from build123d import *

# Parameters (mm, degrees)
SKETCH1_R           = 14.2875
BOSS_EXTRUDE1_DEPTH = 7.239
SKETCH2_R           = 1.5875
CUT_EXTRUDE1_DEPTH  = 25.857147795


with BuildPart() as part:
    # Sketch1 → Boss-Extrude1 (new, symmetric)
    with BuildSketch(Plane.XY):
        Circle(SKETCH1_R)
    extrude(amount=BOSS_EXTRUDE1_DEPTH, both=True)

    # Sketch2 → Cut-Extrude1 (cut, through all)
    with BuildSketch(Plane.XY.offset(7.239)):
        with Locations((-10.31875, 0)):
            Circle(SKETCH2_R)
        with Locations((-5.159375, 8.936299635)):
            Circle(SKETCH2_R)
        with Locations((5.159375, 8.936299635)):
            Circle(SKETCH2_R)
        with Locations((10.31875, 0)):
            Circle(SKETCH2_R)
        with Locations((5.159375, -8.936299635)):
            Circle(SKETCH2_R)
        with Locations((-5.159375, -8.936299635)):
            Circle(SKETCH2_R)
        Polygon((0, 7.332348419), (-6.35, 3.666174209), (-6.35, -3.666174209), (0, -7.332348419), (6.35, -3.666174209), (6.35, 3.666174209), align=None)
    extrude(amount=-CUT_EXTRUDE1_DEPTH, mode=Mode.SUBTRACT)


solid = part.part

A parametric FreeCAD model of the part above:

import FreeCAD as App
import Part
import Sketcher
Q = App.Units.Quantity


def add_polygon(sketch, points):
    """Adds a closed chain of lines whose ends are joined by coincident constraints."""
    first, n = sketch.GeometryCount, len(points)
    for a, b in zip(points, points[1:] + points[:1]):
        sketch.addGeometry(Part.LineSegment(App.Vector(*a, 0), App.Vector(*b, 0)), False)
    for i in range(n):
        sketch.addConstraint(Sketcher.Constraint("Coincident", first + i, 2, first + (i + 1) % n, 1))

doc = App.newDocument("Part")
params = doc.addObject("Spreadsheet::Sheet", "Params")
for row, (alias, value) in enumerate([
    ("sketch1_diameter", "1.125 in"),
    ("pad1_length", "0.57 in"),
    ("sketch2_diameter", "0.125 in"),
], start=1):
    params.set(f"A{row}", alias)
    params.set(f"B{row}", "=" + value)
    params.setAlias(f"B{row}", alias)

body = doc.addObject("PartDesign::Body", "Body")

# Sketch on XY plane
sketch1 = doc.addObject("Sketcher::SketchObject", "Sketch")
body.addObject(sketch1)
sketch1.AttachmentSupport = (doc.XY_Plane, [""])
sketch1.MapMode = "FlatFace"
sketch1.addGeometry(Part.Circle(App.Vector(0, 0, 0), App.Vector(0, 0, 1), 14.2875), False)
sketch1.addConstraint(Sketcher.Constraint("Coincident", 0, 3, -1, 1))
sketch1.addConstraint(Sketcher.Constraint("Diameter", 0, Q("1.125 in")))
sketch1.setExpression("Constraints[1]", "Params.sketch1_diameter")
pad1 = doc.addObject("PartDesign::Pad", "Pad")
body.addObject(pad1)
pad1.Profile = sketch1
pad1.setExpression("Length", "Params.pad1_length")
pad1.Midplane = True

# Sketch on XY plane
sketch2 = doc.addObject("Sketcher::SketchObject", "Sketch001")
body.addObject(sketch2)
sketch2.AttachmentSupport = (doc.XY_Plane, [""])
sketch2.MapMode = "FlatFace"
sketch2.AttachmentOffset = App.Placement(App.Vector(0, 0, 0.285 * 25.4), App.Rotation())
sketch2.addGeometry(Part.Circle(App.Vector(-10.31875, 0, 0), App.Vector(0, 0, 1), 1.5875), False)  # 0
sketch2.addGeometry(Part.Circle(App.Vector(-5.159375, 8.9363, 0), App.Vector(0, 0, 1), 1.5875), False)  # 1
sketch2.addGeometry(Part.Circle(App.Vector(5.159375, 8.9363, 0), App.Vector(0, 0, 1), 1.5875), False)  # 2
sketch2.addGeometry(Part.Circle(App.Vector(10.31875, 0, 0), App.Vector(0, 0, 1), 1.5875), False)  # 3
sketch2.addGeometry(Part.Circle(App.Vector(5.159375, -8.9363, 0), App.Vector(0, 0, 1), 1.5875), False)  # 4
sketch2.addGeometry(Part.Circle(App.Vector(-5.159375, -8.9363, 0), App.Vector(0, 0, 1), 1.5875), False)  # 5
add_polygon(sketch2, [(0, 7.332348), (-6.35, 3.666174), (-6.35, -3.666174), (0, -7.332348), (6.35, -3.666174), (6.35, 3.666174)])  # lines 6-11
sketch2.addConstraint(Sketcher.Constraint("Vertical", 7))
sketch2.addConstraint(Sketcher.Constraint("Vertical", 10))
sketch2.addConstraint(Sketcher.Constraint("Equal", 0, 1))
sketch2.addConstraint(Sketcher.Constraint("Equal", 1, 2))
sketch2.addConstraint(Sketcher.Constraint("Equal", 2, 3))
sketch2.addConstraint(Sketcher.Constraint("Equal", 3, 4))
sketch2.addConstraint(Sketcher.Constraint("Equal", 4, 5))
sketch2.addConstraint(Sketcher.Constraint("Symmetric", 0, 3, 3, 3, -1, 1))
sketch2.addConstraint(Sketcher.Constraint("Symmetric", 1, 3, 4, 3, -1, 1))
sketch2.addConstraint(Sketcher.Constraint("Symmetric", 2, 3, 5, 3, -1, 1))
sketch2.addConstraint(Sketcher.Constraint("Symmetric", 6, 2, 9, 2, -1, 1))
sketch2.addConstraint(Sketcher.Constraint("Symmetric", 8, 2, 11, 2, -1, 1))
sketch2.addConstraint(Sketcher.Constraint("Symmetric", 1, 3, 2, 3, -2))
sketch2.addConstraint(Sketcher.Constraint("PointOnObject", 0, 3, -1))
sketch2.addConstraint(Sketcher.Constraint("PointOnObject", 8, 2, -2))
sketch2.addConstraint(Sketcher.Constraint("Parallel", 8, 11))
sketch2.addConstraint(Sketcher.Constraint("Horizontal", 7, 2, 9, 2))
sketch2.addConstraint(Sketcher.Constraint("Diameter", 0, Q("0.125 in")))
sketch2.addConstraint(Sketcher.Constraint("Angle", 6, Q("-150 deg")))
sketch2.addConstraint(Sketcher.Constraint("DistanceX", 6, 2, -1, 1, Q("0.25 in")))
sketch2.addConstraint(Sketcher.Constraint("DistanceX", 0, 3, -1, 1, Q("0.40625 in")))
sketch2.addConstraint(Sketcher.Constraint("DistanceX", 1, 3, -1, 1, Q("0.203125 in")))
sketch2.addConstraint(Sketcher.Constraint("DistanceY", 7, 2, 7, 1, Q("7.332348 mm")))
sketch2.addConstraint(Sketcher.Constraint("DistanceY", -1, 1, 1, 3, Q("8.9363 mm")))
sketch2.setExpression("Constraints[23]", "Params.sketch2_diameter")
pocket1 = doc.addObject("PartDesign::Pocket", "Pocket")
body.addObject(pocket1)
pocket1.Profile = sketch2
pocket1.Type = "ThroughAll"

doc.recompute()
